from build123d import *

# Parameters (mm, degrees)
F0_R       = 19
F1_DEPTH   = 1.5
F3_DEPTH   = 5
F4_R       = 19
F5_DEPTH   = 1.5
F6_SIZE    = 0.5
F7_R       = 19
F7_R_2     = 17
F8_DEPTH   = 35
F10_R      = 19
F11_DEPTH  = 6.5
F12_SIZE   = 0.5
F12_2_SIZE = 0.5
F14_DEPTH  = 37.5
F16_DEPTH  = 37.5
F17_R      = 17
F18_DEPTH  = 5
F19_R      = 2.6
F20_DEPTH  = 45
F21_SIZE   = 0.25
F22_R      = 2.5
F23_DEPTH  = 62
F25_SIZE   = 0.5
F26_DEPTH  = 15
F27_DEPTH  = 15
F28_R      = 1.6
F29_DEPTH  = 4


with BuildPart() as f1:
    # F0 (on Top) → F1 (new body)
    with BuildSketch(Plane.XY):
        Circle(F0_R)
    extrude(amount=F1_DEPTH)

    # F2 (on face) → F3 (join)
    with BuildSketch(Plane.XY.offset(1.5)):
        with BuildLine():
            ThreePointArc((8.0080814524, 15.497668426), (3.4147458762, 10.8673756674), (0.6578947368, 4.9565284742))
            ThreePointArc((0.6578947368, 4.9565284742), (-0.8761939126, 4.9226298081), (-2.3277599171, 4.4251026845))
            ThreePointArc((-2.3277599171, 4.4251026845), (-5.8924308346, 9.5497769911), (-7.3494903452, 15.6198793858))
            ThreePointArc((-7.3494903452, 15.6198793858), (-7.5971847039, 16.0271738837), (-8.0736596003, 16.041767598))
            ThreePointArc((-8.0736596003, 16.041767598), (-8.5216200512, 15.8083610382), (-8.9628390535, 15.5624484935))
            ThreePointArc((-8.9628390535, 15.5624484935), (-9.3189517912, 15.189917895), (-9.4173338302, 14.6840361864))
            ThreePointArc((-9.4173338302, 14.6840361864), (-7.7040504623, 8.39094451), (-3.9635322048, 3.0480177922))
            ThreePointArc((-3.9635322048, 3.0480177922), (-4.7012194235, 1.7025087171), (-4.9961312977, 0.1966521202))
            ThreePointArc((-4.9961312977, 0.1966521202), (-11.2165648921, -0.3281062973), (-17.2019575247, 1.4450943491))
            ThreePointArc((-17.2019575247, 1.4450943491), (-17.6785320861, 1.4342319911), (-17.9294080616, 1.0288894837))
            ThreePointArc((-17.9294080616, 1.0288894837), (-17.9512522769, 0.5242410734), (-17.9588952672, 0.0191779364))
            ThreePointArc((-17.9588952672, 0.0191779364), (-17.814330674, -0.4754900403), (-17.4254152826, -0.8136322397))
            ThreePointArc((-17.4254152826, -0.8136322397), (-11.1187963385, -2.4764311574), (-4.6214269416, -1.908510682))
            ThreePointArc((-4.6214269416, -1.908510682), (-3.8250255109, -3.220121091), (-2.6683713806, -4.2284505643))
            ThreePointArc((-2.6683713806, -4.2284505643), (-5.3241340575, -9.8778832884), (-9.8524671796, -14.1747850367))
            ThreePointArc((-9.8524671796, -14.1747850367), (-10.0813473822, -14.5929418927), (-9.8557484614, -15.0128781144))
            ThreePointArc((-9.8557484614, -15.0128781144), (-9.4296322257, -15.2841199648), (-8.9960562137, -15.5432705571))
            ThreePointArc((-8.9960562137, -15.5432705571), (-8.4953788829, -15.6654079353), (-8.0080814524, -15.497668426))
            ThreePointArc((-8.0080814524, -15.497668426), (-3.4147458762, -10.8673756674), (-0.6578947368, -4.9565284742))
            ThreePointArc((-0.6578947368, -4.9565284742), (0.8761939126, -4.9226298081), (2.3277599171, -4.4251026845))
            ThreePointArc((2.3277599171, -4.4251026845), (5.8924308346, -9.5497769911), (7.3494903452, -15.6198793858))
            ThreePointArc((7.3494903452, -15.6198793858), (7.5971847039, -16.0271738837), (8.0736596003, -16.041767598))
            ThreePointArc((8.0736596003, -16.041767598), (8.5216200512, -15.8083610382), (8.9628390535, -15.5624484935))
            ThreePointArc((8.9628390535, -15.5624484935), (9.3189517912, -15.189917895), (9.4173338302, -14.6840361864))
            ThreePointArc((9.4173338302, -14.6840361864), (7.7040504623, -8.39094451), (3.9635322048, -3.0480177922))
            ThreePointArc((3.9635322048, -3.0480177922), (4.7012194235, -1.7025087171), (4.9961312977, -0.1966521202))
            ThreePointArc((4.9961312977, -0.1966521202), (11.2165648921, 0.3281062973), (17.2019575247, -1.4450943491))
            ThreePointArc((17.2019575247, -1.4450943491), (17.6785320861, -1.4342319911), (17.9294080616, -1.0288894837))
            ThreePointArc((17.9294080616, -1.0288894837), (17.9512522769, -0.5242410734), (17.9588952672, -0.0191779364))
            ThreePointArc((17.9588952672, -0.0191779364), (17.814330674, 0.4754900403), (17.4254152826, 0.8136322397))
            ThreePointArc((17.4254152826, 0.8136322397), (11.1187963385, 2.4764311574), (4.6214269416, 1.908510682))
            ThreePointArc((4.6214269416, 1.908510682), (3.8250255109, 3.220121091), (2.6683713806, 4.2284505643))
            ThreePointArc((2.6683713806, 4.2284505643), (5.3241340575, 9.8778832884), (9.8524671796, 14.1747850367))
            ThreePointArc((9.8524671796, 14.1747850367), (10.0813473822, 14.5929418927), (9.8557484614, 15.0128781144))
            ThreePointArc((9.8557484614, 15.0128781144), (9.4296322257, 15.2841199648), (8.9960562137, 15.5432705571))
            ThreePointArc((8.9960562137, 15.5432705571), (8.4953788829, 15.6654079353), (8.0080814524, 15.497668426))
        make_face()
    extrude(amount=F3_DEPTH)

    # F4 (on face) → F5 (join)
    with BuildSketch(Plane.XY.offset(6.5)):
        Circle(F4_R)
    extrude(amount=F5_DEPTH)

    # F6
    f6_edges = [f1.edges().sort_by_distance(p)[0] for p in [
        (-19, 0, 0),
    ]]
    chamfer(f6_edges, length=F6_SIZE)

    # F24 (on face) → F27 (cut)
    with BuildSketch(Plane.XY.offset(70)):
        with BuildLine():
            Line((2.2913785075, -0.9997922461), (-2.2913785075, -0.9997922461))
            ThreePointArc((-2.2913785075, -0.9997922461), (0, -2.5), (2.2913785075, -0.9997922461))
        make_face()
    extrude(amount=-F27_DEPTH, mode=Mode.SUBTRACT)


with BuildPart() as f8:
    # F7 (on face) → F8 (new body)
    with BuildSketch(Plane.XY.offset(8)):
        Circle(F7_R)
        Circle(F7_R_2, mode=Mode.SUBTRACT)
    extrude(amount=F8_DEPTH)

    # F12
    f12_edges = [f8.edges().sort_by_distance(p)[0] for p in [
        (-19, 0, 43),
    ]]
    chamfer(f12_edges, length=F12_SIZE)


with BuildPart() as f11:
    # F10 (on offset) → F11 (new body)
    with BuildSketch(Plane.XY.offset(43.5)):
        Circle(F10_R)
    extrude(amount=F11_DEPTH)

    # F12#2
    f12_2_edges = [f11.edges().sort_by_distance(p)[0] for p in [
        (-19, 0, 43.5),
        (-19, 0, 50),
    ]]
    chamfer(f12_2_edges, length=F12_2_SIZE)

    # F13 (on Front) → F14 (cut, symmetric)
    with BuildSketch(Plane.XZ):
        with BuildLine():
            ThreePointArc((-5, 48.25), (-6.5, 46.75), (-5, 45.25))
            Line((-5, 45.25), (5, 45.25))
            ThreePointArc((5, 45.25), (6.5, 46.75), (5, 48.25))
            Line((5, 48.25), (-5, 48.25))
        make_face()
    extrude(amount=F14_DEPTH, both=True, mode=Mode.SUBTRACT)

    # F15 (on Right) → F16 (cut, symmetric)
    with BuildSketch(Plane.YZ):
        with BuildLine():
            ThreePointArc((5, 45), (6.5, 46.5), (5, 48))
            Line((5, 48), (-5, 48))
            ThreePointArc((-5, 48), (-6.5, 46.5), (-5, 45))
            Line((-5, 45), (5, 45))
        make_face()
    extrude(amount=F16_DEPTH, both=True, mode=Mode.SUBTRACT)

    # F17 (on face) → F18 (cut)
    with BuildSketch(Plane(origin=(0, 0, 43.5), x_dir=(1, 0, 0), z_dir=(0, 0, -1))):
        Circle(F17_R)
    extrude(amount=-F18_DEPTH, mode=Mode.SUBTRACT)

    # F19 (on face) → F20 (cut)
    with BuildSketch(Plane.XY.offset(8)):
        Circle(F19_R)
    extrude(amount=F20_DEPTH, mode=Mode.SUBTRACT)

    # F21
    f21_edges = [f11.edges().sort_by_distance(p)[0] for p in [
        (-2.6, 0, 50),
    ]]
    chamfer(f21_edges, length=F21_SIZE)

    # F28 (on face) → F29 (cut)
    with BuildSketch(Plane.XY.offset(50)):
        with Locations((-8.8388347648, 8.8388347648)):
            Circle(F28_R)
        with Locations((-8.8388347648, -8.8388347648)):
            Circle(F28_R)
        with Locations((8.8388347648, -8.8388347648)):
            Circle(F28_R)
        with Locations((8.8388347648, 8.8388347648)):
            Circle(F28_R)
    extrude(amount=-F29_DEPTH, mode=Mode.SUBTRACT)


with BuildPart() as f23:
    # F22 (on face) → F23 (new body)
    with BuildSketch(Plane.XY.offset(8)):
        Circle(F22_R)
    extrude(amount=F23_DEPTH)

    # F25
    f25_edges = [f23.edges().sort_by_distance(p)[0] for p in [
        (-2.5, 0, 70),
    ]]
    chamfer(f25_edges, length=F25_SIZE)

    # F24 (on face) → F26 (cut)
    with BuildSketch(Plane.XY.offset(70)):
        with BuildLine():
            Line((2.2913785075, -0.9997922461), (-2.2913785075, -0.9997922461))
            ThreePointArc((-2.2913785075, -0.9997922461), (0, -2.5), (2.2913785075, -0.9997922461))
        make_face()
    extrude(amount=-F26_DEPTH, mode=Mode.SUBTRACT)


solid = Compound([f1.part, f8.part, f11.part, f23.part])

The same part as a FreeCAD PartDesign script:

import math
import FreeCAD as App
import Part
import Sketcher
from FreeCAD import Vector


def edges_at(feature, points):
    """Names of the edges that pass closest to the given points."""
    edges = feature.Shape.Edges
    near = lambda p: min(range(len(edges)), key=lambda i: edges[i].distToShape(Part.Vertex(*p))[0])
    return sorted({f"Edge{near(p) + 1}" for p in points})

doc = App.newDocument("Part")
params = doc.addObject("Spreadsheet::Sheet", "Params")
for row, (alias, value) in enumerate([
    ("sketch1_diameter", "38 mm"),
    ("pad1_length", "1.5 mm"),
    ("sketch2_radius", "19 mm"),
    ("sketch2_radius2", "5 mm"),
    ("sketch2_radius3", "0.5 mm"),
    ("pad2_length", "5 mm"),
    ("sketch3_diameter", "38 mm"),
    ("pad3_length", "1.5 mm"),
    ("chamfer_size", "0.5 mm"),
    ("sketch4_radius", "2.5 mm"),
    ("pocket1_length", "15 mm"),
    ("sketch5_diameter", "38 mm"),
    ("sketch5_diameter2", "34 mm"),
    ("pad4_length", "35 mm"),
    ("chamfer2_size", "0.5 mm"),
    ("sketch6_diameter", "38 mm"),
    ("pad5_length", "6.5 mm"),
    ("chamfer3_size", "0.5 mm"),
    ("sketch7_radius", "1.5 mm"),
    ("sketch7_width", "10 mm"),
    ("pocket2_length", "75 mm"),
    ("sketch8_radius", "1.5 mm"),
    ("sketch8_width", "10 mm"),
    ("pocket3_length", "75 mm"),
    ("sketch9_diameter", "34 mm"),
    ("pocket4_length", "5 mm"),
    ("sketch10_diameter", "5.2 mm"),
    ("pocket5_length", "45 mm"),
    ("chamfer4_size", "0.25 mm"),
    ("sketch11_diameter", "3.2 mm"),
    ("pocket6_length", "4 mm"),
    ("sketch12_diameter", "5 mm"),
    ("pad6_length", "62 mm"),
    ("chamfer5_size", "0.5 mm"),
    ("sketch13_radius", "2.5 mm"),
    ("pocket7_length", "15 mm"),
], start=1):
    params.set(f"A{row}", alias)
    params.set(f"B{row}", "=" + value)
    params.setAlias(f"B{row}", alias)

body = doc.addObject("PartDesign::Body", "Body")

# Sketch on XY plane
sketch1 = doc.addObject("Sketcher::SketchObject", "Sketch")
body.addObject(sketch1)
sketch1.AttachmentSupport = (doc.XY_Plane, [""])
sketch1.MapMode = "FlatFace"
sketch1.addGeometry(Part.Circle(Vector(0, 0, 0), Vector(0, 0, 1), 19), False)
sketch1.addConstraint([
    Sketcher.Constraint("Coincident", 0, 3, -1, 1),
    Sketcher.Constraint("Diameter", 0, 38.0),
])
sketch1.setExpression("Constraints[1]", "Params.sketch1_diameter")
pad1 = doc.addObject("PartDesign::Pad", "Pad")
body.addObject(pad1)
pad1.Profile = sketch1
pad1.setExpression("Length", "Params.pad1_length")

# Sketch on XY plane
sketch2 = doc.addObject("Sketcher::SketchObject", "Sketch001")
body.addObject(sketch2)
sketch2.AttachmentSupport = (doc.XY_Plane, [""])
sketch2.MapMode = "FlatFace"
sketch2.AttachmentOffset = App.Placement(Vector(0, 0, 1.5), App.Rotation())
sketch2.addGeometry([
    Part.ArcOfCircle(Part.Circle(Vector(19, 0, 0), Vector(0, 0, 1), 19), math.radians(125), math.radians(165)),  # 0
    Part.ArcOfCircle(Part.Circle(Vector(0, 0, 0), Vector(0, 0, 1), 5), math.radians(82), math.radians(118)),  # 1
    Part.ArcOfCircle(Part.Circle(Vector(9.5, 16.5, 0), Vector(0, 0, 1), 16.9), math.radians(-177), math.radians(-135)),  # 2
    Part.ArcOfCircle(Part.Circle(Vector(-7.8, 15.6, 0), Vector(0, 0, 1), 0.5), math.radians(3), math.radians(117)),  # 3
    Part.ArcOfCircle(Part.Circle(Vector(0, 0, 0), Vector(0, 0, 1), 18), math.radians(116.72), math.radians(119.94)),  # 4
    Part.ArcOfCircle(Part.Circle(Vector(-8.5, 14.8, 0), Vector(0, 0, 1), 0.9), math.radians(120), math.radians(185)),  # 5
    Part.ArcOfCircle(Part.Circle(Vector(9.5, 16.5, 0), Vector(0, 0, 1), 19), math.radians(-175), math.radians(-135)),  # 6
    Part.ArcOfCircle(Part.Circle(Vector(0, 0, 0), Vector(0, 0, 1), 5), math.radians(142), math.radians(178)),  # 7
    Part.ArcOfCircle(Part.Circle(Vector(-9.5, 16.5, 0), Vector(0, 0, 1), 16.9), math.radians(-117), math.radians(-75)),  # 8
    Part.ArcOfCircle(Part.Circle(Vector(-17.4, 1, 0), Vector(0, 0, 1), 0.5), math.radians(63), math.radians(177)),  # 9
    Part.ArcOfCircle(Part.Circle(Vector(0, 0, 0), Vector(0, 0, 1), 18), math.radians(176.72), math.radians(179.94)),  # 10
    Part.ArcOfCircle(Part.Circle(Vector(-17, 0, 0), Vector(0, 0, 1), 0.9), math.radians(180), math.radians(245)),  # 11
    Part.ArcOfCircle(Part.Circle(Vector(-9.5, 16.5, 0), Vector(0, 0, 1), 19), math.radians(-115), math.radians(-75)),  # 12
    Part.ArcOfCircle(Part.Circle(Vector(0, 0, 0), Vector(0, 0, 1), 5), math.radians(-158), math.radians(-122)),  # 13
    Part.ArcOfCircle(Part.Circle(Vector(-19, 0, 0), Vector(0, 0, 1), 16.9), math.radians(-57), math.radians(-15)),  # 14
    Part.ArcOfCircle(Part.Circle(Vector(-9.6, -14.6, 0), Vector(0, 0, 1), 0.5), math.radians(123), math.radians(237)),  # 15
    Part.ArcOfCircle(Part.Circle(Vector(0, 0, 0), Vector(0, 0, 1), 18), math.radians(-123.28), math.radians(-120.06)),  # 16
    Part.ArcOfCircle(Part.Circle(Vector(-8.5, -14.8, 0), Vector(0, 0, 1), 0.9), math.radians(-120), math.radians(-55)),  # 17
    Part.ArcOfCircle(Part.Circle(Vector(-19, 0, 0), Vector(0, 0, 1), 19), math.radians(-55), math.radians(-15)),  # 18
    Part.ArcOfCircle(Part.Circle(Vector(0, 0, 0), Vector(0, 0, 1), 5), math.radians(-98), math.radians(-62)),  # 19
    Part.ArcOfCircle(Part.Circle(Vector(-9.5, -16.5, 0), Vector(0, 0, 1), 16.9), math.radians(3), math.radians(45)),  # 20
    Part.ArcOfCircle(Part.Circle(Vector(7.8, -15.6, 0), Vector(0, 0, 1), 0.5), math.radians(-177), math.radians(-63)),  # 21
    Part.ArcOfCircle(Part.Circle(Vector(0, 0, 0), Vector(0, 0, 1), 18), math.radians(-63.28), math.radians(-60.06)),  # 22
    Part.ArcOfCircle(Part.Circle(Vector(8.5, -14.8, 0), Vector(0, 0, 1), 0.9), math.radians(-60), math.radians(5)),  # 23
    Part.ArcOfCircle(Part.Circle(Vector(-9.5, -16.5, 0), Vector(0, 0, 1), 19), math.radians(5), math.radians(45)),  # 24
    Part.ArcOfCircle(Part.Circle(Vector(0, 0, 0), Vector(0, 0, 1), 5), math.radians(-38), math.radians(-2)),  # 25
    Part.ArcOfCircle(Part.Circle(Vector(9.5, -16.5, 0), Vector(0, 0, 1), 16.9), math.radians(63), math.radians(105)),  # 26
    Part.ArcOfCircle(Part.Circle(Vector(17.4, -1, 0), Vector(0, 0, 1), 0.5), math.radians(-117), math.radians(-3)),  # 27
    Part.ArcOfCircle(Part.Circle(Vector(0, 0, 0), Vector(0, 0, 1), 18), math.radians(-3.28), math.radians(-0.06)),  # 28
    Part.ArcOfCircle(Part.Circle(Vector(17, 0, 0), Vector(0, 0, 1), 0.9), math.radians(0), math.radians(65)),  # 29
    Part.ArcOfCircle(Part.Circle(Vector(9.5, -16.5, 0), Vector(0, 0, 1), 19), math.radians(65), math.radians(105)),  # 30
    Part.ArcOfCircle(Part.Circle(Vector(0, 0, 0), Vector(0, 0, 1), 5), math.radians(22), math.radians(58)),  # 31
    Part.ArcOfCircle(Part.Circle(Vector(19, 0, 0), Vector(0, 0, 1), 16.9), math.radians(123), math.radians(165)),  # 32
    Part.ArcOfCircle(Part.Circle(Vector(9.6, 14.6, 0), Vector(0, 0, 1), 0.5), math.radians(-57), math.radians(57)),  # 33
    Part.ArcOfCircle(Part.Circle(Vector(0, 0, 0), Vector(0, 0, 1), 18), math.radians(56.72), math.radians(59.94)),  # 34
    Part.ArcOfCircle(Part.Circle(Vector(8.5, 14.8, 0), Vector(0, 0, 1), 0.9), math.radians(60), math.radians(125)),  # 35
], False)
sketch2.addConstraint([
    Sketcher.Constraint("Coincident", 0, 2, 1, 1),
    Sketcher.Constraint("Coincident", 1, 2, 2, 2),
    Sketcher.Constraint("Tangent", 2, 1, 3, 1),
    Sketcher.Constraint("Tangent", 3, 2, 4, 1),
    Sketcher.Constraint("Tangent", 4, 2, 5, 1),
    Sketcher.Constraint("Tangent", 5, 2, 6, 1),
    Sketcher.Constraint("Coincident", 6, 2, 7, 1),
    Sketcher.Constraint("Coincident", 7, 2, 8, 2),
    Sketcher.Constraint("Tangent", 8, 1, 9, 1),
    Sketcher.Constraint("Tangent", 9, 2, 10, 1),
    Sketcher.Constraint("Tangent", 10, 2, 11, 1),
    Sketcher.Constraint("Tangent", 11, 2, 12, 1),
    Sketcher.Constraint("Coincident", 12, 2, 13, 1),
    Sketcher.Constraint("Coincident", 13, 2, 14, 2),
    Sketcher.Constraint("Tangent", 14, 1, 15, 1),
    Sketcher.Constraint("Tangent", 15, 2, 16, 1),
    Sketcher.Constraint("Tangent", 16, 2, 17, 1),
    Sketcher.Constraint("Tangent", 17, 2, 18, 1),
    Sketcher.Constraint("Coincident", 18, 2, 19, 1),
    Sketcher.Constraint("Coincident", 19, 2, 20, 2),
    Sketcher.Constraint("Tangent", 20, 1, 21, 1),
    Sketcher.Constraint("Tangent", 21, 2, 22, 1),
    Sketcher.Constraint("Tangent", 22, 2, 23, 1),
    Sketcher.Constraint("Tangent", 23, 2, 24, 1),
    Sketcher.Constraint("Coincident", 24, 2, 25, 1),
    Sketcher.Constraint("Coincident", 25, 2, 26, 2),
    Sketcher.Constraint("Tangent", 26, 1, 27, 1),
    Sketcher.Constraint("Tangent", 27, 2, 28, 1),
    Sketcher.Constraint("Tangent", 28, 2, 29, 1),
    Sketcher.Constraint("Tangent", 29, 2, 30, 1),
    Sketcher.Constraint("Coincident", 30, 2, 31, 1),
    Sketcher.Constraint("Coincident", 31, 2, 32, 2),
    Sketcher.Constraint("Tangent", 32, 1, 33, 1),
    Sketcher.Constraint("Tangent", 33, 2, 34, 1),
    Sketcher.Constraint("Tangent", 34, 2, 35, 1),
    Sketcher.Constraint("Tangent", 35, 2, 0, 1),
    Sketcher.Constraint("Coincident", 1, 3, -1, 1),
    Sketcher.Constraint("Coincident", 4, 3, -1, 1),
    Sketcher.Constraint("Coincident", 7, 3, -1, 1),
    Sketcher.Constraint("Coincident", 10, 3, -1, 1),
    Sketcher.Constraint("Coincident", 13, 3, -1, 1),
    Sketcher.Constraint("Coincident", 16, 3, -1, 1),
    Sketcher.Constraint("Coincident", 19, 3, -1, 1),
    Sketcher.Constraint("Coincident", 22, 3, -1, 1),
    Sketcher.Constraint("Coincident", 25, 3, -1, 1),
    Sketcher.Constraint("Coincident", 28, 3, -1, 1),
    Sketcher.Constraint("Coincident", 31, 3, -1, 1),
    Sketcher.Constraint("Coincident", 34, 3, -1, 1),
    Sketcher.Constraint("Coincident", 6, 3, 2, 3),
    Sketcher.Constraint("Coincident", 12, 3, 8, 3),
    Sketcher.Constraint("Coincident", 18, 3, 14, 3),
    Sketcher.Constraint("Coincident", 24, 3, 20, 3),
    Sketcher.Constraint("Coincident", 30, 3, 26, 3),
    Sketcher.Constraint("Coincident", 32, 3, 0, 3),
    Sketcher.Constraint("Equal", 0, 6),
    Sketcher.Constraint("Equal", 1, 7),
    Sketcher.Constraint("Equal", 2, 8),
    Sketcher.Constraint("Equal", 3, 9),
    Sketcher.Constraint("Equal", 4, 10),
    Sketcher.Constraint("Equal", 5, 11),
    Sketcher.Constraint("Equal", 6, 12),
    Sketcher.Constraint("Equal", 7, 13),
    Sketcher.Constraint("Equal", 8, 14),
    Sketcher.Constraint("Equal", 9, 15),
    Sketcher.Constraint("Equal", 10, 16),
    Sketcher.Constraint("Equal", 11, 17),
    Sketcher.Constraint("Equal", 12, 18),
    Sketcher.Constraint("Equal", 13, 19),
    Sketcher.Constraint("Equal", 14, 20),
    Sketcher.Constraint("Equal", 15, 21),
    Sketcher.Constraint("Equal", 16, 22),
    Sketcher.Constraint("Equal", 17, 23),
    Sketcher.Constraint("Equal", 18, 24),
    Sketcher.Constraint("Equal", 19, 25),
    Sketcher.Constraint("Equal", 20, 26),
    Sketcher.Constraint("Equal", 21, 27),
    Sketcher.Constraint("Equal", 22, 28),
    Sketcher.Constraint("Equal", 23, 29),
    Sketcher.Constraint("Equal", 24, 30),
    Sketcher.Constraint("Equal", 25, 31),
    Sketcher.Constraint("Equal", 26, 32),
    Sketcher.Constraint("Equal", 27, 33),
    Sketcher.Constraint("Equal", 28, 34),
    Sketcher.Constraint("Equal", 29, 35),
    Sketcher.Constraint("Symmetric", 0, 3, 14, 3, -1, 1),
    Sketcher.Constraint("Symmetric", 2, 3, 20, 3, -1, 1),
    Sketcher.Constraint("Symmetric", 8, 3, 26, 3, -1, 1),
    Sketcher.Constraint("Symmetric", 2, 3, 8, 3, -2),
    Sketcher.Constraint("PointOnObject", 0, 3, -1),
    Sketcher.Constraint("Radius", 0, 19.0),
    Sketcher.Constraint("Radius", 1, 5.0),
    Sketcher.Constraint("Radius", 3, 0.5),
    Sketcher.Constraint("DistanceX", -1, 1, 0, 3, 19.0),
    Sketcher.Constraint("DistanceX", -1, 1, 2, 3, 9.5),
    Sketcher.Constraint("Radius", 5, 0.91526),
    Sketcher.Constraint("Radius", 2, 16.870148),
    Sketcher.Constraint("Radius", 4, 17.958905),
    Sketcher.Constraint("DistanceY", -1, 1, 11, 3, 0.018201),
])
sketch2.setExpression("Constraints[89]", "Params.sketch2_radius")
sketch2.setExpression("Constraints[90]", "Params.sketch2_radius2")
sketch2.setExpression("Constraints[91]", "Params.sketch2_radius3")
pad2 = doc.addObject("PartDesign::Pad", "Pad001")
body.addObject(pad2)
pad2.Profile = sketch2
pad2.setExpression("Length", "Params.pad2_length")

# Sketch on XY plane
sketch3 = doc.addObject("Sketcher::SketchObject", "Sketch002")
body.addObject(sketch3)
sketch3.AttachmentSupport = (doc.XY_Plane, [""])
sketch3.MapMode = "FlatFace"
sketch3.AttachmentOffset = App.Placement(Vector(0, 0, 6.5), App.Rotation())
sketch3.addGeometry(Part.Circle(Vector(0, 0, 0), Vector(0, 0, 1), 19), False)
sketch3.addConstraint([
    Sketcher.Constraint("Coincident", 0, 3, -1, 1),
    Sketcher.Constraint("Diameter", 0, 38.0),
])
sketch3.setExpression("Constraints[1]", "Params.sketch3_diameter")
pad3 = doc.addObject("PartDesign::Pad", "Pad002")
body.addObject(pad3)
pad3.Profile = sketch3
pad3.setExpression("Length", "Params.pad3_length")
doc.recompute()

chamfer = doc.addObject("PartDesign::Chamfer", "Chamfer")
body.addObject(chamfer)
chamfer.Base = (pad3, edges_at(pad3, [(-19, 0, 0)]))
chamfer.setExpression("Size", "Params.chamfer_size")

# Sketch on XY plane
sketch4 = doc.addObject("Sketcher::SketchObject", "Sketch003")
body.addObject(sketch4)
sketch4.AttachmentSupport = (doc.XY_Plane, [""])
sketch4.MapMode = "FlatFace"
sketch4.AttachmentOffset = App.Placement(Vector(0, 0, 70), App.Rotation())
sketch4.addGeometry([
    Part.LineSegment(Vector(2.3, -1, 0), Vector(-2.3, -1, 0)),
    Part.ArcOfCircle(Part.Circle(Vector(0, 0, 0), Vector(0, 0, 1), 2.5), math.radians(-156), math.radians(-24)),
], False)
sketch4.addConstraint([
    Sketcher.Constraint("Coincident", 0, 1, 1, 2),
    Sketcher.Constraint("Coincident", 1, 1, 0, 2),
    Sketcher.Constraint("Horizontal", 0),
    Sketcher.Constraint("Coincident", 1, 3, -1, 1),
    Sketcher.Constraint("Radius", 1, 2.5),
    Sketcher.Constraint("DistanceX", 0, 2, 0, 1, 4.582757),
])
sketch4.setExpression("Constraints[4]", "Params.sketch4_radius")
pocket1 = doc.addObject("PartDesign::Pocket", "Pocket")
body.addObject(pocket1)
pocket1.Profile = sketch4
pocket1.setExpression("Length", "Params.pocket1_length")
body2 = doc.addObject("PartDesign::Body", "Body001")

# Sketch on XY plane
sketch5 = doc.addObject("Sketcher::SketchObject", "Sketch004")
body2.addObject(sketch5)
sketch5.AttachmentSupport = (doc.getObject("XY_Plane001"), [""])
sketch5.MapMode = "FlatFace"
sketch5.AttachmentOffset = App.Placement(Vector(0, 0, 8), App.Rotation())
sketch5.addGeometry([
    Part.Circle(Vector(0, 0, 0), Vector(0, 0, 1), 19),
    Part.Circle(Vector(0, 0, 0), Vector(0, 0, 1), 17),
], False)
sketch5.addConstraint([
    Sketcher.Constraint("Coincident", 0, 3, -1, 1),
    Sketcher.Constraint("Coincident", 1, 3, -1, 1),
    Sketcher.Constraint("Diameter", 0, 38.0),
    Sketcher.Constraint("Diameter", 1, 34.0),
])
sketch5.setExpression("Constraints[2]", "Params.sketch5_diameter")
sketch5.setExpression("Constraints[3]", "Params.sketch5_diameter2")
pad4 = doc.addObject("PartDesign::Pad", "Pad003")
body2.addObject(pad4)
pad4.Profile = sketch5
pad4.setExpression("Length", "Params.pad4_length")
doc.recompute()

chamfer2 = doc.addObject("PartDesign::Chamfer", "Chamfer001")
body2.addObject(chamfer2)
chamfer2.Base = (pad4, edges_at(pad4, [(-19, 0, 43)]))
chamfer2.setExpression("Size", "Params.chamfer2_size")
body3 = doc.addObject("PartDesign::Body", "Body002")

# Sketch on XY plane
sketch6 = doc.addObject("Sketcher::SketchObject", "Sketch005")
body3.addObject(sketch6)
sketch6.AttachmentSupport = (doc.getObject("XY_Plane002"), [""])
sketch6.MapMode = "FlatFace"
sketch6.AttachmentOffset = App.Placement(Vector(0, 0, 43.5), App.Rotation())
sketch6.addGeometry(Part.Circle(Vector(0, 0, 0), Vector(0, 0, 1), 19), False)
sketch6.addConstraint([
    Sketcher.Constraint("Coincident", 0, 3, -1, 1),
    Sketcher.Constraint("Diameter", 0, 38.0),
])
sketch6.setExpression("Constraints[1]", "Params.sketch6_diameter")
pad5 = doc.addObject("PartDesign::Pad", "Pad004")
body3.addObject(pad5)
pad5.Profile = sketch6
pad5.setExpression("Length", "Params.pad5_length")
doc.recompute()

chamfer3 = doc.addObject("PartDesign::Chamfer", "Chamfer002")
body3.addObject(chamfer3)
chamfer3.Base = (pad5, edges_at(pad5, [(-19, 0, 43.5), (-19, 0, 50)]))
chamfer3.setExpression("Size", "Params.chamfer3_size")

# Sketch on XZ plane
sketch7 = doc.addObject("Sketcher::SketchObject", "Sketch006")
body3.addObject(sketch7)
sketch7.AttachmentSupport = (doc.getObject("XZ_Plane002"), [""])
sketch7.MapMode = "FlatFace"
sketch7.addGeometry([
    Part.ArcOfCircle(Part.Circle(Vector(-5, 46.8, 0), Vector(0, 0, 1), 1.5), math.radians(90), math.radians(270)),
    Part.LineSegment(Vector(-5, 45.2, 0), Vector(5, 45.2, 0)),
    Part.ArcOfCircle(Part.Circle(Vector(5, 46.8, 0), Vector(0, 0, 1), 1.5), math.radians(-90), math.radians(90)),
    Part.LineSegment(Vector(5, 48.2, 0), Vector(-5, 48.2, 0)),
], False)
sketch7.addConstraint([
    Sketcher.Constraint("Tangent", 0, 2, 1, 1),
    Sketcher.Constraint("Tangent", 1, 2, 2, 1),
    Sketcher.Constraint("Tangent", 2, 2, 3, 1),
    Sketcher.Constraint("Tangent", 3, 2, 0, 1),
    Sketcher.Constraint("Horizontal", 1),
    Sketcher.Constraint("Horizontal", 3),
    Sketcher.Constraint("Radius", 0, 1.5),
    Sketcher.Constraint("DistanceX", 1, 1, 1, 2, 10.0),
    Sketcher.Constraint("DistanceX", 0, 3, -1, 1, 5.0),
    Sketcher.Constraint("DistanceY", -1, 1, 0, 3, 46.75),
])
sketch7.setExpression("Constraints[6]", "Params.sketch7_radius")
sketch7.setExpression("Constraints[7]", "Params.sketch7_width")
pocket2 = doc.addObject("PartDesign::Pocket", "Pocket001")
body3.addObject(pocket2)
pocket2.Profile = sketch7
pocket2.setExpression("Length", "Params.pocket2_length")
pocket2.Midplane = True

# Sketch on YZ plane
sketch8 = doc.addObject("Sketcher::SketchObject", "Sketch007")
body3.addObject(sketch8)
sketch8.AttachmentSupport = (doc.getObject("YZ_Plane002"), [""])
sketch8.MapMode = "FlatFace"
sketch8.addGeometry([
    Part.ArcOfCircle(Part.Circle(Vector(5, 46.5, 0), Vector(0, 0, 1), 1.5), math.radians(-90), math.radians(90)),
    Part.LineSegment(Vector(5, 48, 0), Vector(-5, 48, 0)),
    Part.ArcOfCircle(Part.Circle(Vector(-5, 46.5, 0), Vector(0, 0, 1), 1.5), math.radians(90), math.radians(270)),
    Part.LineSegment(Vector(-5, 45, 0), Vector(5, 45, 0)),
], False)
sketch8.addConstraint([
    Sketcher.Constraint("Tangent", 0, 2, 1, 1),
    Sketcher.Constraint("Tangent", 1, 2, 2, 1),
    Sketcher.Constraint("Tangent", 2, 2, 3, 1),
    Sketcher.Constraint("Tangent", 3, 2, 0, 1),
    Sketcher.Constraint("Horizontal", 1),
    Sketcher.Constraint("Horizontal", 3),
    Sketcher.Constraint("Radius", 0, 1.5),
    Sketcher.Constraint("DistanceX", 1, 2, 1, 1, 10.0),
    Sketcher.Constraint("DistanceX", -1, 1, 0, 3, 5.0),
    Sketcher.Constraint("DistanceY", -1, 1, 0, 2, 48.0),
])
sketch8.setExpression("Constraints[6]", "Params.sketch8_radius")
sketch8.setExpression("Constraints[7]", "Params.sketch8_width")
pocket3 = doc.addObject("PartDesign::Pocket", "Pocket002")
body3.addObject(pocket3)
pocket3.Profile = sketch8
pocket3.setExpression("Length", "Params.pocket3_length")
pocket3.Midplane = True

# Sketch on XY plane
sketch9 = doc.addObject("Sketcher::SketchObject", "Sketch008")
body3.addObject(sketch9)
sketch9.AttachmentSupport = (doc.getObject("XY_Plane002"), [""])
sketch9.MapMode = "FlatFace"
sketch9.AttachmentOffset = App.Placement(Vector(0, 0, 43.5), App.Rotation())
sketch9.addGeometry(Part.Circle(Vector(0, 0, 0), Vector(0, 0, 1), 17), False)
sketch9.addConstraint([
    Sketcher.Constraint("Coincident", 0, 3, -1, 1),
    Sketcher.Constraint("Diameter", 0, 34.0),
])
sketch9.setExpression("Constraints[1]", "Params.sketch9_diameter")
pocket4 = doc.addObject("PartDesign::Pocket", "Pocket003")
body3.addObject(pocket4)
pocket4.Profile = sketch9
pocket4.setExpression("Length", "Params.pocket4_length")
pocket4.Reversed = True

# Sketch on XY plane
sketch10 = doc.addObject("Sketcher::SketchObject", "Sketch009")
body3.addObject(sketch10)
sketch10.AttachmentSupport = (doc.getObject("XY_Plane002"), [""])
sketch10.MapMode = "FlatFace"
sketch10.AttachmentOffset = App.Placement(Vector(0, 0, 8), App.Rotation())
sketch10.addGeometry(Part.Circle(Vector(0, 0, 0), Vector(0, 0, 1), 2.6), False)
sketch10.addConstraint([
    Sketcher.Constraint("Coincident", 0, 3, -1, 1),
    Sketcher.Constraint("Diameter", 0, 5.2),
])
sketch10.setExpression("Constraints[1]", "Params.sketch10_diameter")
pocket5 = doc.addObject("PartDesign::Pocket", "Pocket004")
body3.addObject(pocket5)
pocket5.Profile = sketch10
pocket5.setExpression("Length", "Params.pocket5_length")
pocket5.Reversed = True
doc.recompute()

chamfer4 = doc.addObject("PartDesign::Chamfer", "Chamfer003")
body3.addObject(chamfer4)
chamfer4.Base = (pocket5, edges_at(pocket5, [(-2.6, 0, 50)]))
chamfer4.setExpression("Size", "Params.chamfer4_size")

# Sketch on XY plane
sketch11 = doc.addObject("Sketcher::SketchObject", "Sketch010")
body3.addObject(sketch11)
sketch11.AttachmentSupport = (doc.getObject("XY_Plane002"), [""])
sketch11.MapMode = "FlatFace"
sketch11.AttachmentOffset = App.Placement(Vector(0, 0, 50), App.Rotation())
sketch11.addGeometry([
    Part.Circle(Vector(-8.8, 8.8, 0), Vector(0, 0, 1), 1.6),
    Part.Circle(Vector(-8.8, -8.8, 0), Vector(0, 0, 1), 1.6),
    Part.Circle(Vector(8.8, -8.8, 0), Vector(0, 0, 1), 1.6),
    Part.Circle(Vector(8.8, 8.8, 0), Vector(0, 0, 1), 1.6),
], False)
sketch11.addConstraint([
    Sketcher.Constraint("Equal", 0, 1),
    Sketcher.Constraint("Equal", 1, 2),
    Sketcher.Constraint("Equal", 2, 3),
    Sketcher.Constraint("Symmetric", 0, 3, 2, 3, -1, 1),
    Sketcher.Constraint("Symmetric", 1, 3, 3, 3, -1, 1),
    Sketcher.Constraint("Symmetric", 1, 3, 2, 3, -2),
    Sketcher.Constraint("Diameter", 0, 3.2),
    Sketcher.Constraint("DistanceY", 1, 3, 0, 3, 17.67767),
    Sketcher.Constraint("DistanceX", 1, 3, 2, 3, 17.67767),
])
sketch11.setExpression("Constraints[6]", "Params.sketch11_diameter")
pocket6 = doc.addObject("PartDesign::Pocket", "Pocket005")
body3.addObject(pocket6)
pocket6.Profile = sketch11
pocket6.setExpression("Length", "Params.pocket6_length")
body4 = doc.addObject("PartDesign::Body", "Body003")

# Sketch on XY plane
sketch12 = doc.addObject("Sketcher::SketchObject", "Sketch011")
body4.addObject(sketch12)
sketch12.AttachmentSupport = (doc.getObject("XY_Plane003"), [""])
sketch12.MapMode = "FlatFace"
sketch12.AttachmentOffset = App.Placement(Vector(0, 0, 8), App.Rotation())
sketch12.addGeometry(Part.Circle(Vector(0, 0, 0), Vector(0, 0, 1), 2.5), False)
sketch12.addConstraint([
    Sketcher.Constraint("Coincident", 0, 3, -1, 1),
    Sketcher.Constraint("Diameter", 0, 5.0),
])
sketch12.setExpression("Constraints[1]", "Params.sketch12_diameter")
pad6 = doc.addObject("PartDesign::Pad", "Pad005")
body4.addObject(pad6)
pad6.Profile = sketch12
pad6.setExpression("Length", "Params.pad6_length")
doc.recompute()

chamfer5 = doc.addObject("PartDesign::Chamfer", "Chamfer004")
body4.addObject(chamfer5)
chamfer5.Base = (pad6, edges_at(pad6, [(-2.5, 0, 70)]))
chamfer5.setExpression("Size", "Params.chamfer5_size")

# Sketch on XY plane
sketch13 = doc.addObject("Sketcher::SketchObject", "Sketch012")
body4.addObject(sketch13)
sketch13.AttachmentSupport = (doc.getObject("XY_Plane003"), [""])
sketch13.MapMode = "FlatFace"
sketch13.AttachmentOffset = App.Placement(Vector(0, 0, 70), App.Rotation())
sketch13.addGeometry([
    Part.LineSegment(Vector(2.3, -1, 0), Vector(-2.3, -1, 0)),
    Part.ArcOfCircle(Part.Circle(Vector(0, 0, 0), Vector(0, 0, 1), 2.5), math.radians(-156), math.radians(-24)),
], False)
sketch13.addConstraint([
    Sketcher.Constraint("Coincident", 0, 1, 1, 2),
    Sketcher.Constraint("Coincident", 1, 1, 0, 2),
    Sketcher.Constraint("Horizontal", 0),
    Sketcher.Constraint("Coincident", 1, 3, -1, 1),
    Sketcher.Constraint("Radius", 1, 2.5),
    Sketcher.Constraint("DistanceX", 0, 2, 0, 1, 4.582757),
])
sketch13.setExpression("Constraints[4]", "Params.sketch13_radius")
pocket7 = doc.addObject("PartDesign::Pocket", "Pocket006")
body4.addObject(pocket7)
pocket7.Profile = sketch13
pocket7.setExpression("Length", "Params.pocket7_length")

doc.recompute()
